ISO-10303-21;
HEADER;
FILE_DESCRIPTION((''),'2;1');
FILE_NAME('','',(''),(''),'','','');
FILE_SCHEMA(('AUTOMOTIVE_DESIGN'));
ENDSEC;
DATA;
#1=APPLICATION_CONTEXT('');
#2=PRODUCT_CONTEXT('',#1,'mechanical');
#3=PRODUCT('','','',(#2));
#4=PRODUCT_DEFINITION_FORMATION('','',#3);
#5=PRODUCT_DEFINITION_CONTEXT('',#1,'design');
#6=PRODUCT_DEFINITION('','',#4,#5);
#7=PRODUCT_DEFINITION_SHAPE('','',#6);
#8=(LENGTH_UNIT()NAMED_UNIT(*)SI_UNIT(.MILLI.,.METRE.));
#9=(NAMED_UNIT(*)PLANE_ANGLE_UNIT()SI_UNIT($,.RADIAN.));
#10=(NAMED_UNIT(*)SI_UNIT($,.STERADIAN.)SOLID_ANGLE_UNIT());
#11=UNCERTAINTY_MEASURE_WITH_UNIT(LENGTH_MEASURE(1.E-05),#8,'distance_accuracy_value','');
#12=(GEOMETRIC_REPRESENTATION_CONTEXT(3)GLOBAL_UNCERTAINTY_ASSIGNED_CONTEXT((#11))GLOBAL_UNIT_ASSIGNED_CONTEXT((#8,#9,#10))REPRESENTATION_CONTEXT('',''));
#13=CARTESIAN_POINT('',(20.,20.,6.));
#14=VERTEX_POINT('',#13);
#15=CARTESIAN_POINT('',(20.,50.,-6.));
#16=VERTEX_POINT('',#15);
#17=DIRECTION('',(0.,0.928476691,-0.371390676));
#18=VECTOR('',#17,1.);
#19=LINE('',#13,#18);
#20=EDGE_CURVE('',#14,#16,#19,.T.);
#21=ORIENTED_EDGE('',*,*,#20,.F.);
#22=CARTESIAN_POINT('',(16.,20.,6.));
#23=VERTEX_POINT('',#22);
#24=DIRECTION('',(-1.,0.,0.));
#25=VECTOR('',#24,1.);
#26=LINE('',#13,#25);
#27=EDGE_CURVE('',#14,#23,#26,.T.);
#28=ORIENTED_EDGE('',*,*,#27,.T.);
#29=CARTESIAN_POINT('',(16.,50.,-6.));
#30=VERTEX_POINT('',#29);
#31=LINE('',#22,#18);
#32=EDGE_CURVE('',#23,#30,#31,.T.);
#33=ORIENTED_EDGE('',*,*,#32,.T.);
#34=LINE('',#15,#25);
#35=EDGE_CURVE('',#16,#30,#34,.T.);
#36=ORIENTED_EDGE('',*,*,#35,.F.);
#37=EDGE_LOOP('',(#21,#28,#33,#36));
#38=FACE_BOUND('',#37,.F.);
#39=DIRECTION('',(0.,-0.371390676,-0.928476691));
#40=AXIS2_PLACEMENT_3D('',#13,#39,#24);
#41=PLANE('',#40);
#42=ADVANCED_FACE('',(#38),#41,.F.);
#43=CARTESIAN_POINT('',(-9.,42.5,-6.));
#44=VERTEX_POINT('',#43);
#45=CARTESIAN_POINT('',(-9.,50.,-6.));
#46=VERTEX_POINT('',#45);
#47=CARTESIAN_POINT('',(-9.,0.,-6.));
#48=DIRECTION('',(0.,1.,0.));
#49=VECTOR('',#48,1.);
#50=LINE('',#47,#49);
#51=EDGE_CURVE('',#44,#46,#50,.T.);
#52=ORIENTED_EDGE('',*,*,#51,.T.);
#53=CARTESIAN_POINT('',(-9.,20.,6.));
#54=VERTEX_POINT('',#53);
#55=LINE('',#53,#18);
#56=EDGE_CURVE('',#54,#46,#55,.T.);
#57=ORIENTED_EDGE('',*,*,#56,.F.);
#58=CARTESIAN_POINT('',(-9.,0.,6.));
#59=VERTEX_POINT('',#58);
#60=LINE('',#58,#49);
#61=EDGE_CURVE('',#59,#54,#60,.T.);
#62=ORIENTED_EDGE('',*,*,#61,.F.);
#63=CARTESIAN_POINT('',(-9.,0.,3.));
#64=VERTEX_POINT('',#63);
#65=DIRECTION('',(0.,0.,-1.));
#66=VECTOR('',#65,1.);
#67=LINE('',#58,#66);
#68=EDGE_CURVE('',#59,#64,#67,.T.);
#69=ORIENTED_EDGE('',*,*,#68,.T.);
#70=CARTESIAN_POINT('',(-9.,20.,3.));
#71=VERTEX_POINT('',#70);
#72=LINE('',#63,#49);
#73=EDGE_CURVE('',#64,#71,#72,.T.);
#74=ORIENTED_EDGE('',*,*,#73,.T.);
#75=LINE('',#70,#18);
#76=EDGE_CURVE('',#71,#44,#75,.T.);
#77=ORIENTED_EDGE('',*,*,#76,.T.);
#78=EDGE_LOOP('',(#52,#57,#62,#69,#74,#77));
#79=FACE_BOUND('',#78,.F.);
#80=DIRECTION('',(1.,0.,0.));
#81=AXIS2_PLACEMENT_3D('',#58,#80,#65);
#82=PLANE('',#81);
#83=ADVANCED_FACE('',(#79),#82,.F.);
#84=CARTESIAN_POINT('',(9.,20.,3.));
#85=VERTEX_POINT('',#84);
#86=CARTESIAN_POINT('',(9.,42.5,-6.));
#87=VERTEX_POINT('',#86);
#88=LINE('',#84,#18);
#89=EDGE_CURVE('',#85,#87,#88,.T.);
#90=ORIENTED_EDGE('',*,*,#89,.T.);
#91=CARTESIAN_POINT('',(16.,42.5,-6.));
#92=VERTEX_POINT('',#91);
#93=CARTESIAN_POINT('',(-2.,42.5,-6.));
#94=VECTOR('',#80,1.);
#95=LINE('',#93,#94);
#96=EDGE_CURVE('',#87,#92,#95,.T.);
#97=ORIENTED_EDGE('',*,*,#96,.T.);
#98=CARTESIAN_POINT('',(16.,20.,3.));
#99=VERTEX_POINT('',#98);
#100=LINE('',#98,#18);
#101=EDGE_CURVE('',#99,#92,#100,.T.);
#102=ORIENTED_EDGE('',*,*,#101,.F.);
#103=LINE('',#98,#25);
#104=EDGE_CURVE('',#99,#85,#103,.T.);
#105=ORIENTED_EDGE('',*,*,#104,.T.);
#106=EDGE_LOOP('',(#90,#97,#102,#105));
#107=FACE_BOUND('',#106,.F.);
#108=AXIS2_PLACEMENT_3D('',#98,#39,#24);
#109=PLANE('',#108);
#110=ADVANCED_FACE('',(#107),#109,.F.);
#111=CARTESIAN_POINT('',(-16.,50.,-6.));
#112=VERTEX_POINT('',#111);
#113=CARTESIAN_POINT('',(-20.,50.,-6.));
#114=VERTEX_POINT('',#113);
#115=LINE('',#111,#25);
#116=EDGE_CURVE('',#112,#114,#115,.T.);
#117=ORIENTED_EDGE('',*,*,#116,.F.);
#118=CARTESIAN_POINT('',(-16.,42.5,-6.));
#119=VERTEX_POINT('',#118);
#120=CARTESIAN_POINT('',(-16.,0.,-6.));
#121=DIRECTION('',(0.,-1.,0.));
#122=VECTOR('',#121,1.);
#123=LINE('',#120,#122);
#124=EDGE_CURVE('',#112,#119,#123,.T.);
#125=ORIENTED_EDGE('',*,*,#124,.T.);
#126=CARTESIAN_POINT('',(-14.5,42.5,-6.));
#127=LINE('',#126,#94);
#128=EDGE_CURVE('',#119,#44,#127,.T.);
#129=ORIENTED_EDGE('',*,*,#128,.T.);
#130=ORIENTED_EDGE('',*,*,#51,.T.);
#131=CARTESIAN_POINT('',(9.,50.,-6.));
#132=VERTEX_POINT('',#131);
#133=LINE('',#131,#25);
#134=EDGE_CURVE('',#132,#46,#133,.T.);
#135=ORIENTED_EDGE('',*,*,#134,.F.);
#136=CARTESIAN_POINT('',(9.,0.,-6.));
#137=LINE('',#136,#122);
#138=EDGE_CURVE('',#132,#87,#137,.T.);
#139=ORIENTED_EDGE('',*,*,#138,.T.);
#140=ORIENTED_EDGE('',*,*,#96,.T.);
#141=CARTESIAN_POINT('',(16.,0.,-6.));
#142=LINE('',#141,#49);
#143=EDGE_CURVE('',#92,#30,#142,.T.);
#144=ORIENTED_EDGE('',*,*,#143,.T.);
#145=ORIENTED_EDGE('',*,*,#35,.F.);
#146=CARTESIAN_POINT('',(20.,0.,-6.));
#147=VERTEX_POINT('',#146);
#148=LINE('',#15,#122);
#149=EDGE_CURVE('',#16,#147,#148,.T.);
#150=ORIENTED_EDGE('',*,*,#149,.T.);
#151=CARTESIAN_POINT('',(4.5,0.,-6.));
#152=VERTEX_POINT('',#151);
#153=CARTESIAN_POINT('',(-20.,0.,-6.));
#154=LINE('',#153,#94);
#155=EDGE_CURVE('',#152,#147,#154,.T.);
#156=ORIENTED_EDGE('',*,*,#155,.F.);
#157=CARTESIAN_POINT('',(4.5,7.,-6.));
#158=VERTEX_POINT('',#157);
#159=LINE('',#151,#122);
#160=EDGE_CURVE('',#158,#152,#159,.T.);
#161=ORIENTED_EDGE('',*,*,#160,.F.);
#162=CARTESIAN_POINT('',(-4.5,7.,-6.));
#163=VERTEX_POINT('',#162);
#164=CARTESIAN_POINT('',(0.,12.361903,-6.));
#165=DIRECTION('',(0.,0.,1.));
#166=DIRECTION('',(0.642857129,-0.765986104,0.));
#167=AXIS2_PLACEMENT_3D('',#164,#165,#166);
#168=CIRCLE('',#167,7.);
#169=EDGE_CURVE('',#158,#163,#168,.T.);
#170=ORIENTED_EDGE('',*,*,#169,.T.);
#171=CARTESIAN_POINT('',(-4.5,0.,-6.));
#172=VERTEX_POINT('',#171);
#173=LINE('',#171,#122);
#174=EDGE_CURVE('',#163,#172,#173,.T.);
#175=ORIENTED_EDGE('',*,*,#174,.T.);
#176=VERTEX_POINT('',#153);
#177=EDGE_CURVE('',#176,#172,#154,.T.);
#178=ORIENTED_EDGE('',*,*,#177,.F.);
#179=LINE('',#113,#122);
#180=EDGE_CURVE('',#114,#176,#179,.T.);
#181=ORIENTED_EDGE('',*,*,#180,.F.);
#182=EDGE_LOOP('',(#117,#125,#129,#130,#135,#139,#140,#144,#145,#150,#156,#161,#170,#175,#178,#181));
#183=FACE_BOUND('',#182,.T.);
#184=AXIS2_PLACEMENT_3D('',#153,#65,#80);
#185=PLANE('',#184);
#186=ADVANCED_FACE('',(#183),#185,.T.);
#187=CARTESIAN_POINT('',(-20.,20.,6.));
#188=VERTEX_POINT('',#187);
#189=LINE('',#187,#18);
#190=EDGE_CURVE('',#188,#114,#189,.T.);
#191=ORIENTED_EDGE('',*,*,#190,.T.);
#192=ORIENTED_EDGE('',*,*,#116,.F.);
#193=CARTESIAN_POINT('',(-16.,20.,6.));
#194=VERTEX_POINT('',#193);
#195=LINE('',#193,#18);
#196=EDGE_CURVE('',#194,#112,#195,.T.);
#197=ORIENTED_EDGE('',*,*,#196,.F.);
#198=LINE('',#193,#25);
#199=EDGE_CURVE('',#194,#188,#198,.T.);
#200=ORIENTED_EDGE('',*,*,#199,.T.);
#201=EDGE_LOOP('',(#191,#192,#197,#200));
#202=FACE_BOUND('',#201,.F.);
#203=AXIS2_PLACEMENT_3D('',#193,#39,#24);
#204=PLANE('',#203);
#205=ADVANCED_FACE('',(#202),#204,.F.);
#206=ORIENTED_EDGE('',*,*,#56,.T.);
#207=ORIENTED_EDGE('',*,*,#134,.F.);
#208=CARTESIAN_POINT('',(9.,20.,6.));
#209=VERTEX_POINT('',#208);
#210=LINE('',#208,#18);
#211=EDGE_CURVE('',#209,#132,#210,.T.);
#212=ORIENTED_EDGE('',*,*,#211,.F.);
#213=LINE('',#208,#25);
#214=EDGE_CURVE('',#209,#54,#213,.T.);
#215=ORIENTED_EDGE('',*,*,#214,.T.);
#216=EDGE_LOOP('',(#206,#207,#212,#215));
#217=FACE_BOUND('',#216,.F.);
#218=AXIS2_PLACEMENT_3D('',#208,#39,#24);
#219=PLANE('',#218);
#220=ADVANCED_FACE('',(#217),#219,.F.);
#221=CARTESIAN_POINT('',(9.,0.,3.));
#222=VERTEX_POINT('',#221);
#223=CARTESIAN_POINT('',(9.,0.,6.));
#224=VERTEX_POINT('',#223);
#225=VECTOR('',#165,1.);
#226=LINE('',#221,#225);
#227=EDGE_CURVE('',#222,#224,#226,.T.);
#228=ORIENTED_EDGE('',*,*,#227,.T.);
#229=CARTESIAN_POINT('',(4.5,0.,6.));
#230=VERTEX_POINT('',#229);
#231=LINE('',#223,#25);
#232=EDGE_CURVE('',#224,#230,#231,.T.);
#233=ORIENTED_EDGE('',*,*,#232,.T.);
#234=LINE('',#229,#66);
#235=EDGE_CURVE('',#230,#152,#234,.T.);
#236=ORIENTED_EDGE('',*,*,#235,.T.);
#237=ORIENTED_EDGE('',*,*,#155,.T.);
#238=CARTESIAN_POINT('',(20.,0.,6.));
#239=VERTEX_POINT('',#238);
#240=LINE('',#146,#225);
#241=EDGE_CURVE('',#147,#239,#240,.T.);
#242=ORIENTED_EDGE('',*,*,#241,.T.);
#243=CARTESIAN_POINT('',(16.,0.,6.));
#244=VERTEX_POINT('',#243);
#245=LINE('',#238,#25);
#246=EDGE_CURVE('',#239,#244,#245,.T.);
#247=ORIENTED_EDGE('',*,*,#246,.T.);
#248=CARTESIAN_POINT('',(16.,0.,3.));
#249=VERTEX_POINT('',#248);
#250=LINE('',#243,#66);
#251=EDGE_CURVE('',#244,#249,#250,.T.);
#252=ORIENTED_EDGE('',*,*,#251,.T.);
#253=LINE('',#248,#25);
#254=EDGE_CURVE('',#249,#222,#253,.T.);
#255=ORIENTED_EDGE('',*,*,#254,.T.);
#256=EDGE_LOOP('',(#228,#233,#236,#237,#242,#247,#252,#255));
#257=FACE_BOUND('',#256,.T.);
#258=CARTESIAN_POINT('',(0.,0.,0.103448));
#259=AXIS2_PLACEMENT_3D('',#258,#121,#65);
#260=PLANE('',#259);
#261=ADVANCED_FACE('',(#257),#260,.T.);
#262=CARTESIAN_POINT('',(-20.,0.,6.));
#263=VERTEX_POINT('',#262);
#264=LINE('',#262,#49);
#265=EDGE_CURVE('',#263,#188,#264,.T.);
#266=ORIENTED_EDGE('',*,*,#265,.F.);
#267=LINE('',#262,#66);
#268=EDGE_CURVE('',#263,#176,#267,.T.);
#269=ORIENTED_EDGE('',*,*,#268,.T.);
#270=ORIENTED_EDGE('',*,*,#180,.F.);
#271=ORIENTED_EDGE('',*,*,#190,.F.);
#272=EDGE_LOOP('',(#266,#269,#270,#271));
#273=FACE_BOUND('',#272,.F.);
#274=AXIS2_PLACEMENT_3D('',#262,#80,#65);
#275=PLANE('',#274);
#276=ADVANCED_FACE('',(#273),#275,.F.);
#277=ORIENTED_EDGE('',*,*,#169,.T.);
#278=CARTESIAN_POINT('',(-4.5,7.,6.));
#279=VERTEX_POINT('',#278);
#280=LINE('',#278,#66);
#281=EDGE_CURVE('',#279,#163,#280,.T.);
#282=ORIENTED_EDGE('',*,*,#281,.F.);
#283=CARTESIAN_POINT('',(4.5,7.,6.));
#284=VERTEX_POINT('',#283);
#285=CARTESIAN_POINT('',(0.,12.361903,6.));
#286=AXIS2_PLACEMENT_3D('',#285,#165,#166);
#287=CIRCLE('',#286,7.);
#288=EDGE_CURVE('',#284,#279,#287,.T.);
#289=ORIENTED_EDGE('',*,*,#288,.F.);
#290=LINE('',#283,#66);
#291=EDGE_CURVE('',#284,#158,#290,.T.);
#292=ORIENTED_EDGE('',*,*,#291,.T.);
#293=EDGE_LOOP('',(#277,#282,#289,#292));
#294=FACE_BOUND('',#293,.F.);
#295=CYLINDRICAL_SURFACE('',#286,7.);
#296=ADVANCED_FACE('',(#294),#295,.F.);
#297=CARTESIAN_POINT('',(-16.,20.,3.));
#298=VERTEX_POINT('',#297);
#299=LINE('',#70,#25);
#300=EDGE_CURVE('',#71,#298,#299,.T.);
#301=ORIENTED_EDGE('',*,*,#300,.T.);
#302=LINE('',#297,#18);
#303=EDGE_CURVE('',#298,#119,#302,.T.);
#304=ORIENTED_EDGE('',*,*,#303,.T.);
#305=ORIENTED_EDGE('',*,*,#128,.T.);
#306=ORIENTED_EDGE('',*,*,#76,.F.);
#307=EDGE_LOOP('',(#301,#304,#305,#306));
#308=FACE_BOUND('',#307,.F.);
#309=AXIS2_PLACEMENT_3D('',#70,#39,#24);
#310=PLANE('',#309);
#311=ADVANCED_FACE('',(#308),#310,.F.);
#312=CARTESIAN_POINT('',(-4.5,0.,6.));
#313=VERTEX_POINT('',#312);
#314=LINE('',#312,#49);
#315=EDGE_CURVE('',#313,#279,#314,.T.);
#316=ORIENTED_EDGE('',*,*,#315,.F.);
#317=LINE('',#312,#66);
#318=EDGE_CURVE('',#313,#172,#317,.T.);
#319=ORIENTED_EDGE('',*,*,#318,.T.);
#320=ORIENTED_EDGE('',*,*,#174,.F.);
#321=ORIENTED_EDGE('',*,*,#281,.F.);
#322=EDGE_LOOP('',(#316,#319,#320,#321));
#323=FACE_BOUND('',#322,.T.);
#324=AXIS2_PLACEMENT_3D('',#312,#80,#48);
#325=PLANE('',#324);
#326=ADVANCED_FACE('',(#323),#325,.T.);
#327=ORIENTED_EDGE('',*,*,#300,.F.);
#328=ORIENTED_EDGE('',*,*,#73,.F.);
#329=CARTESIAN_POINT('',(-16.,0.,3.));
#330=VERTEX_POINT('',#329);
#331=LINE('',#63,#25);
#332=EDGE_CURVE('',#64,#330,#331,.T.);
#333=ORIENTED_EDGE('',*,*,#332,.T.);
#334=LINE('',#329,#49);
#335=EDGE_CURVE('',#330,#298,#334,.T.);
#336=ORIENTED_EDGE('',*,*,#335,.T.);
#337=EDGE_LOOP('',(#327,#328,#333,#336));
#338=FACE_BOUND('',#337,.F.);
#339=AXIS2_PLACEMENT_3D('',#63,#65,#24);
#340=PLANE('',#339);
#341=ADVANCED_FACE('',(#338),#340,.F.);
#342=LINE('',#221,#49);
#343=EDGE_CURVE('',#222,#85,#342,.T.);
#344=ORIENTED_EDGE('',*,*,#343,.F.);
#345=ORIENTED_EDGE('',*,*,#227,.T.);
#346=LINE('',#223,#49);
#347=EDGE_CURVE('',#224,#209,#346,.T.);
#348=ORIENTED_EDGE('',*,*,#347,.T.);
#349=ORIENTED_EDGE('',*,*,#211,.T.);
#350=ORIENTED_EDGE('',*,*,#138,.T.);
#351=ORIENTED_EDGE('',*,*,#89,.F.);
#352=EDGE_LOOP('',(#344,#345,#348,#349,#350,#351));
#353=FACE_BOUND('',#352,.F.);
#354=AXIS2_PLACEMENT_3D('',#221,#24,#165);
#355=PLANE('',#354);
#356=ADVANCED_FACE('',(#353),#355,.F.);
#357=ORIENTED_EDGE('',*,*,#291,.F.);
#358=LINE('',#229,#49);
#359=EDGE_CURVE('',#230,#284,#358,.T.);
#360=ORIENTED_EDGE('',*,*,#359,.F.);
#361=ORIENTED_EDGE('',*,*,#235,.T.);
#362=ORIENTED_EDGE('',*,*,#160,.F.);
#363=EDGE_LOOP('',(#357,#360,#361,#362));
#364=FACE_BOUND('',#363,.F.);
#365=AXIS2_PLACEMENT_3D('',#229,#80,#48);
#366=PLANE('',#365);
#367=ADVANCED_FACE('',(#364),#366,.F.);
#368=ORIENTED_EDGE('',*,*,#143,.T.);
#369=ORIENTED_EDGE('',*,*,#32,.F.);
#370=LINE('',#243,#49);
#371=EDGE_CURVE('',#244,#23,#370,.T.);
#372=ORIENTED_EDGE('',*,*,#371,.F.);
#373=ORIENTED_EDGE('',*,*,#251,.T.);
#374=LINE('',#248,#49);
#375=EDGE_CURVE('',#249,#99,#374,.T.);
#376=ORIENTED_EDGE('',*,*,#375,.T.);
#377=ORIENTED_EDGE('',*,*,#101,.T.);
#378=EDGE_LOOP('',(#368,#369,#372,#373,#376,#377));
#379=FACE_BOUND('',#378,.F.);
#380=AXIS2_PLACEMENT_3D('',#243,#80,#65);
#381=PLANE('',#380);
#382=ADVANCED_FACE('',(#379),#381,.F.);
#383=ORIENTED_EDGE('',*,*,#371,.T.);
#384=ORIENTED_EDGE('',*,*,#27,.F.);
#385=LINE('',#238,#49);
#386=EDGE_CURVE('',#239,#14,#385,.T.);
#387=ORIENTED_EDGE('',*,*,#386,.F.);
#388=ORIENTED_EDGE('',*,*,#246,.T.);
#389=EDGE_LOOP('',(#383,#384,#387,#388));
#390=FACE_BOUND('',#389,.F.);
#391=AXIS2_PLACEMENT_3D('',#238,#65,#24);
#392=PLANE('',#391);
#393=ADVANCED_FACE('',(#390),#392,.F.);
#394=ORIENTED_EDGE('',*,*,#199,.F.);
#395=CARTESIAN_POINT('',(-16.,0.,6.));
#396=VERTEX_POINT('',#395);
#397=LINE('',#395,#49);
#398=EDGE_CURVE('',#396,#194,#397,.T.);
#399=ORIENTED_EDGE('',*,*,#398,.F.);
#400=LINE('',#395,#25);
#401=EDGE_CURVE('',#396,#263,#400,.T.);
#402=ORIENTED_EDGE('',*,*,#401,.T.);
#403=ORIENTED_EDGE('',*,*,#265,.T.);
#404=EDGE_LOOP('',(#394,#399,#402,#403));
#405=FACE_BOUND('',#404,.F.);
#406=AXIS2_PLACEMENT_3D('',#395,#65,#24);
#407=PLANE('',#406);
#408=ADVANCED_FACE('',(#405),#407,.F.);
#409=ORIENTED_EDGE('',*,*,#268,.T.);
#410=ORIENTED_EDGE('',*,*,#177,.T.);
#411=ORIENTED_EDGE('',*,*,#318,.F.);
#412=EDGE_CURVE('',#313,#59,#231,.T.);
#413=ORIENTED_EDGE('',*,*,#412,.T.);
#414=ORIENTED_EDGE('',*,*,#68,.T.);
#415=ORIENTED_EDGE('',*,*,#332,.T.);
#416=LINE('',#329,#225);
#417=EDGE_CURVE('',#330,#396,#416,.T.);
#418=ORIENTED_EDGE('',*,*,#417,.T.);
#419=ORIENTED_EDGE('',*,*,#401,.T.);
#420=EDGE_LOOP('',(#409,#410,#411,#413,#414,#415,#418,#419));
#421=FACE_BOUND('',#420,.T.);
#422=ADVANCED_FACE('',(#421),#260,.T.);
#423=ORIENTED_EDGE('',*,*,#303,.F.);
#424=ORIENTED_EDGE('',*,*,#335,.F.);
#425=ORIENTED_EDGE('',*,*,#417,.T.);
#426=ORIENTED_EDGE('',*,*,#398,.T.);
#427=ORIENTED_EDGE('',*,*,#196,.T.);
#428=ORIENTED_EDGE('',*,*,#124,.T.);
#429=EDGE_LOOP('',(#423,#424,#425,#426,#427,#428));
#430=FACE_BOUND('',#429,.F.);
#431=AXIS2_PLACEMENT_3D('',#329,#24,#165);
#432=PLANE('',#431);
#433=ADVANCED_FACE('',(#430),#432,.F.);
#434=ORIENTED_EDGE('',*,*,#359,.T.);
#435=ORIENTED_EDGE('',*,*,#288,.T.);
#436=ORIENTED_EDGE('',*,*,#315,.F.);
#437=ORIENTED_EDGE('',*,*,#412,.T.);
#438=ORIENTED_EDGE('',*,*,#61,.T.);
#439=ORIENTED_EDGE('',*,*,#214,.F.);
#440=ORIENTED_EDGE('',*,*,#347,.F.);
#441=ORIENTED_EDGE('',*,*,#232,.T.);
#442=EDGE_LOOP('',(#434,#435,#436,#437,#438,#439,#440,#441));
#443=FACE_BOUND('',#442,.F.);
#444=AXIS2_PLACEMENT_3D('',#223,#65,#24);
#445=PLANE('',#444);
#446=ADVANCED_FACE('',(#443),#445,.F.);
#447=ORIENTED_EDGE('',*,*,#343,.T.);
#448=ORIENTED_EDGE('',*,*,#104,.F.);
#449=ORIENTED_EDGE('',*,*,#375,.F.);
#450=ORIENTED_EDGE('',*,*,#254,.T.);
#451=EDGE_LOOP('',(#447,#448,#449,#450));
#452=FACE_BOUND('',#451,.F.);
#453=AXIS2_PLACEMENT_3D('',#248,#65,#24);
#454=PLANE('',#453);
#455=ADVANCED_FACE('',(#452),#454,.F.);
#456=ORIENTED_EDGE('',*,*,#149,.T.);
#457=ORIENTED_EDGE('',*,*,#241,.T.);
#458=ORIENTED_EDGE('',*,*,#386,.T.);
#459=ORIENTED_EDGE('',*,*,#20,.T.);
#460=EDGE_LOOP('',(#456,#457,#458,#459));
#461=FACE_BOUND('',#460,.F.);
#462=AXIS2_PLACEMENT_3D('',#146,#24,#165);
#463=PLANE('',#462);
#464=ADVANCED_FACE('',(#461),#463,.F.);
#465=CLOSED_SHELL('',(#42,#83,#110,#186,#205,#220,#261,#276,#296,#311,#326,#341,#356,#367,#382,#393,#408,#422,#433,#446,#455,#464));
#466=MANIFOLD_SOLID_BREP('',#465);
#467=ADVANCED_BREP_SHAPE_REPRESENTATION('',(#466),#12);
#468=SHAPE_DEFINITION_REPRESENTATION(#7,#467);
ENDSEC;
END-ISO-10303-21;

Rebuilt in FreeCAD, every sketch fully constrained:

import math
import FreeCAD as App
import Part
import Sketcher

V = App.Vector
Q = App.Units.Quantity


def add_polygon(sketch, points):
    """Adds a closed chain of lines whose ends are joined by coincident constraints."""
    first, n = sketch.GeometryCount, len(points)
    for a, b in zip(points, points[1:] + points[:1]):
        sketch.addGeometry(Part.LineSegment(App.Vector(*a, 0), App.Vector(*b, 0)), False)
    for i in range(n):
        sketch.addConstraint(Sketcher.Constraint("Coincident", first + i, 2, first + (i + 1) % n, 1))

doc = App.newDocument("Part")
body = doc.addObject("PartDesign::Body", "Body")

# Sketch on XZ plane
sketch1 = body.newObject("Sketcher::SketchObject", "Sketch")
sketch1.AttachmentSupport = (doc.getObject("XZ_Plane"), [""])
sketch1.MapMode = "FlatFace"
add_polygon(sketch1, [(-20, 6), (-20, -6), (20, -6), (20, 6), (16, 6), (16, 3), (9, 3), (9, 6), (-9, 6), (-9, 3), (-16, 3), (-16, 6)])  # lines 0-11
sketch1.addConstraint(Sketcher.Constraint("Vertical", 0))
sketch1.addConstraint(Sketcher.Constraint("Horizontal", 1))
sketch1.addConstraint(Sketcher.Constraint("Vertical", 2))
sketch1.addConstraint(Sketcher.Constraint("Horizontal", 3))
sketch1.addConstraint(Sketcher.Constraint("Vertical", 4))
sketch1.addConstraint(Sketcher.Constraint("Horizontal", 5))
sketch1.addConstraint(Sketcher.Constraint("Vertical", 6))
sketch1.addConstraint(Sketcher.Constraint("Horizontal", 7))
sketch1.addConstraint(Sketcher.Constraint("Vertical", 8))
sketch1.addConstraint(Sketcher.Constraint("Horizontal", 9))
sketch1.addConstraint(Sketcher.Constraint("Vertical", 10))
sketch1.addConstraint(Sketcher.Constraint("Horizontal", 11))
sketch1.addConstraint(Sketcher.Constraint("Symmetric", 0, 2, 2, 2, -1, 1))
sketch1.addConstraint(Sketcher.Constraint("Symmetric", 5, 2, 8, 2, -2))
sketch1.addConstraint(Sketcher.Constraint("Symmetric", 3, 2, 10, 2, -2))
sketch1.addConstraint(Sketcher.Constraint("Horizontal", 3, 2, 6, 2))
sketch1.addConstraint(Sketcher.Constraint("DistanceX", 1, 1, 1, 2, Q("40 mm")))
sketch1.addConstraint(Sketcher.Constraint("DistanceX", 3, 2, 3, 1, Q("4 mm")))
sketch1.addConstraint(Sketcher.Constraint("DistanceX", 5, 2, 5, 1, Q("7 mm")))
sketch1.addConstraint(Sketcher.Constraint("DistanceY", 0, 2, 0, 1, Q("12 mm")))
sketch1.addConstraint(Sketcher.Constraint("DistanceY", 4, 2, 4, 1, Q("3 mm")))

# Sketch on YZ plane
sketch2 = body.newObject("Sketcher::SketchObject", "Sketch001")
sketch2.AttachmentSupport = (doc.getObject("YZ_Plane"), [""])
sketch2.MapMode = "FlatFace"
sketch2.addGeometry(Part.LineSegment(V(0, 0, 0), V(20, 0, 0)), False)
sketch2.addGeometry(Part.LineSegment(V(20, 0, 0), V(50, -12, 0)), False)
sketch2.addConstraint(Sketcher.Constraint("Coincident", 0, 2, 1, 1))
sketch2.addConstraint(Sketcher.Constraint("Horizontal", 0))
sketch2.addConstraint(Sketcher.Constraint("Coincident", 0, 1, -1, 1))
sketch2.addConstraint(Sketcher.Constraint("DistanceX", 0, 1, 0, 2, Q("20 mm")))
sketch2.addConstraint(Sketcher.Constraint("DistanceX", -1, 1, 1, 2, Q("50 mm")))
sketch2.addConstraint(Sketcher.Constraint("DistanceY", 1, 2, -1, 1, Q("12 mm")))
doc.recompute()

additivepipe = body.newObject("PartDesign::AdditivePipe", "AdditivePipe")
additivepipe.Profile = sketch1
additivepipe.Spine = (sketch2, ["Edge1", "Edge2"])

# Sketch on XZ plane
sketch3 = body.newObject("Sketcher::SketchObject", "Sketch002")
sketch3.AttachmentSupport = (doc.getObject("XZ_Plane"), [""])
sketch3.MapMode = "FlatFace"
add_polygon(sketch3, [(-20, -6), (-20, -18), (20, -18), (20, -6)])  # lines 0-3
sketch3.addConstraint(Sketcher.Constraint("Vertical", 0))
sketch3.addConstraint(Sketcher.Constraint("Horizontal", 1))
sketch3.addConstraint(Sketcher.Constraint("Vertical", 2))
sketch3.addConstraint(Sketcher.Constraint("Horizontal", 3))
sketch3.addConstraint(Sketcher.Constraint("DistanceX", 1, 1, 1, 2, Q("40 mm")))
sketch3.addConstraint(Sketcher.Constraint("DistanceY", 0, 2, 0, 1, Q("12 mm")))
sketch3.addConstraint(Sketcher.Constraint("DistanceX", 0, 2, -1, 1, Q("20 mm")))
sketch3.addConstraint(Sketcher.Constraint("DistanceY", 0, 2, -1, 1, Q("18 mm")))
pocket1 = body.newObject("PartDesign::Pocket", "Pocket")
pocket1.Profile = sketch3
pocket1.Type = "ThroughAll"

# Sketch on XY plane
sketch4 = body.newObject("Sketcher::SketchObject", "Sketch003")
sketch4.AttachmentSupport = (doc.getObject("XY_Plane"), [""])
sketch4.MapMode = "FlatFace"
sketch4.AttachmentOffset = App.Placement(V(0, 0, 6), App.Rotation())
sketch4.addGeometry(Part.LineSegment(V(-4, 0, 0), V(4, 0, 0)), False)
sketch4.addGeometry(Part.LineSegment(V(4, 0, 0), V(4, 7, 0)), False)
sketch4.addGeometry(Part.ArcOfCircle(Part.Circle(V(0, 12, 0), V(0, 0, 1), 7), math.radians(-50), math.radians(230)), False)
sketch4.addGeometry(Part.LineSegment(V(-4, 7, 0), V(-4, 0, 0)), False)
sketch4.addConstraint(Sketcher.Constraint("Coincident", 0, 2, 1, 1))
sketch4.addConstraint(Sketcher.Constraint("Coincident", 1, 2, 2, 1))
sketch4.addConstraint(Sketcher.Constraint("Coincident", 2, 2, 3, 1))
sketch4.addConstraint(Sketcher.Constraint("Coincident", 3, 2, 0, 1))
sketch4.addConstraint(Sketcher.Constraint("Horizontal", 0))
sketch4.addConstraint(Sketcher.Constraint("Vertical", 1))
sketch4.addConstraint(Sketcher.Constraint("Vertical", 3))
sketch4.addConstraint(Sketcher.Constraint("Symmetric", 0, 2, 3, 2, -1, 1))
sketch4.addConstraint(Sketcher.Constraint("PointOnObject", 2, 3, -2))
sketch4.addConstraint(Sketcher.Constraint("Radius", 2, Q("7 mm")))
sketch4.addConstraint(Sketcher.Constraint("DistanceX", 0, 1, 0, 2, Q("9 mm")))
sketch4.addConstraint(Sketcher.Constraint("DistanceY", 1, 1, 1, 2, Q("7 mm")))
pocket2 = body.newObject("PartDesign::Pocket", "Pocket001")
pocket2.Profile = sketch4
pocket2.Type = "ThroughAll"
pocket2.Midplane = True

doc.recompute()
